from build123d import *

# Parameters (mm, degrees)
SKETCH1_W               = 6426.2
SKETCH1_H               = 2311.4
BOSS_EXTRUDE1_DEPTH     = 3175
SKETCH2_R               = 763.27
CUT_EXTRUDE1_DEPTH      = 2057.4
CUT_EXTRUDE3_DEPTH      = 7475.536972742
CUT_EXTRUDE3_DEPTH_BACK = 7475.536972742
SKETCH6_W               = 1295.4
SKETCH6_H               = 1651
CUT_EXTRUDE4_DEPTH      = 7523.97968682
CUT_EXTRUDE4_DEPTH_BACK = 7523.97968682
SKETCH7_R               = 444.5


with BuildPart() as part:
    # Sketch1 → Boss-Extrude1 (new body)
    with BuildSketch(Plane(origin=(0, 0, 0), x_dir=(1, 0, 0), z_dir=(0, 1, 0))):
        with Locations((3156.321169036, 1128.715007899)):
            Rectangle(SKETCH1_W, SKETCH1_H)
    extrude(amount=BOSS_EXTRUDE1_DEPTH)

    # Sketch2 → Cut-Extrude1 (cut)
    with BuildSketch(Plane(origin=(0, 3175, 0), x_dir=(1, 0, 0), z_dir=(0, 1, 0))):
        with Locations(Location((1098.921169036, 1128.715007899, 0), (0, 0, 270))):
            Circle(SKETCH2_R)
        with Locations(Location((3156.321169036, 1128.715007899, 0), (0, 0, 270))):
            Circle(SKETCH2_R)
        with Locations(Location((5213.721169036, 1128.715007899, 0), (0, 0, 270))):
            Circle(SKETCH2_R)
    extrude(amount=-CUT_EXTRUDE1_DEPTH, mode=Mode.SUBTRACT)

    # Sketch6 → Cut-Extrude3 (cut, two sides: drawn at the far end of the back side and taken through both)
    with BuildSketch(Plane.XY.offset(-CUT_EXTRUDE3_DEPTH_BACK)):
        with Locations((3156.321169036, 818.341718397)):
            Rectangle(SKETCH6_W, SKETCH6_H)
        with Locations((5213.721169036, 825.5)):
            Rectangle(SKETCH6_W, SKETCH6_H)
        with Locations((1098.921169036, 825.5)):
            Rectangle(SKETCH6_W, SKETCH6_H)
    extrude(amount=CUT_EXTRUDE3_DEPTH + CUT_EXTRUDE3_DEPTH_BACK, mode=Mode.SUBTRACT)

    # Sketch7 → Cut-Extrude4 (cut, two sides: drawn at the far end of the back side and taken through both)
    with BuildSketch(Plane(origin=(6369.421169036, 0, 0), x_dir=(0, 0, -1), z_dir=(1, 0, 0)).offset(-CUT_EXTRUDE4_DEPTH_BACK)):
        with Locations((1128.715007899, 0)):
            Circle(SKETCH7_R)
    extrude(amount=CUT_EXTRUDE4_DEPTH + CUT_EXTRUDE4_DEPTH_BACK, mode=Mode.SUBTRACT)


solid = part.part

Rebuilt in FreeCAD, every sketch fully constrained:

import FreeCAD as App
import Part
import Sketcher

V = App.Vector
Q = App.Units.Quantity

doc = App.newDocument("Part")
params = doc.addObject("Spreadsheet::Sheet", "Params")
for row, (alias, value) in enumerate([
    ("sketch1_width", "253 in"),
    ("sketch1_height", "91 in"),
    ("pad1_length", "125 in"),
    ("sketch2_diameter", "60.1 in"),
    ("pocket1_length", "81 in"),
    ("sketch3_width", "51 in"),
    ("sketch3_height", "65 in"),
    ("sketch4_diameter", "35 in"),
], start=1):
    params.set(f"A{row}", alias)
    params.set(f"B{row}", "=" + value)
    params.setAlias(f"B{row}", alias)

body = doc.addObject("PartDesign::Body", "Body")

sketch1 = doc.addObject("Sketcher::SketchObject", "Sketch")
body.addObject(sketch1)
sketch1.AttachmentSupport = (doc.XZ_Plane, [""])
sketch1.MapMode = "FlatFace"
sketch1.addGeometry(Part.LineSegment(V(-57, -2284, 0), V(-57, 27, 0)), False)
sketch1.addGeometry(Part.LineSegment(V(-57, 27, 0), V(6369, 27, 0)), False)
sketch1.addGeometry(Part.LineSegment(V(6369, 27, 0), V(6369, -2284, 0)), False)
sketch1.addGeometry(Part.LineSegment(V(6369, -2284, 0), V(-57, -2284, 0)), False)
sketch1.addConstraint(Sketcher.Constraint("Coincident", 0, 2, 1, 1))
sketch1.addConstraint(Sketcher.Constraint("Coincident", 1, 2, 2, 1))
sketch1.addConstraint(Sketcher.Constraint("Coincident", 2, 2, 3, 1))
sketch1.addConstraint(Sketcher.Constraint("Coincident", 3, 2, 0, 1))
sketch1.addConstraint(Sketcher.Constraint("Vertical", 0))
sketch1.addConstraint(Sketcher.Constraint("Horizontal", 1))
sketch1.addConstraint(Sketcher.Constraint("Vertical", 2))
sketch1.addConstraint(Sketcher.Constraint("Horizontal", 3))
sketch1.addConstraint(Sketcher.Constraint("DistanceX", 1, 1, 1, 2, Q("253 in")))
sketch1.addConstraint(Sketcher.Constraint("DistanceY", 0, 1, 0, 2, Q("91 in")))
sketch1.addConstraint(Sketcher.Constraint("DistanceX", 0, 2, -1, 1, 56.778831))
sketch1.addConstraint(Sketcher.Constraint("DistanceY", -1, 1, 0, 2, 26.984992))
sketch1.setExpression("Constraints[8]", "Params.sketch1_width")
sketch1.setExpression("Constraints[9]", "Params.sketch1_height")
pad1 = doc.addObject("PartDesign::Pad", "Pad")
body.addObject(pad1)
pad1.Profile = sketch1
pad1.setExpression("Length", "Params.pad1_length")
pad1.Reversed = True

sketch2 = doc.addObject("Sketcher::SketchObject", "Sketch001")
body.addObject(sketch2)
sketch2.AttachmentSupport = (doc.XZ_Plane, [""])
sketch2.MapMode = "FlatFace"
sketch2.AttachmentOffset = App.Placement(V(0, 0, -125 * 25.4), App.Rotation())
sketch2.addGeometry(Part.Circle(V(1099, -1129, 0), V(0, 0, 1), 763), False)
sketch2.addGeometry(Part.Circle(V(3156, -1129, 0), V(0, 0, 1), 763), False)
sketch2.addGeometry(Part.Circle(V(5214, -1129, 0), V(0, 0, 1), 763), False)
sketch2.addConstraint(Sketcher.Constraint("Equal", 0, 1))
sketch2.addConstraint(Sketcher.Constraint("Equal", 1, 2))
sketch2.addConstraint(Sketcher.Constraint("Horizontal", 0, 3, 1, 3))
sketch2.addConstraint(Sketcher.Constraint("Horizontal", 1, 3, 2, 3))
sketch2.addConstraint(Sketcher.Constraint("Diameter", 0, Q("60.1 in")))
sketch2.addConstraint(Sketcher.Constraint("DistanceX", 0, 3, 1, 3, Q("81 in")))
sketch2.addConstraint(Sketcher.Constraint("DistanceX", 1, 3, 2, 3, Q("81 in")))
sketch2.addConstraint(Sketcher.Constraint("DistanceX", -1, 1, 0, 3, 1098.921169))
sketch2.addConstraint(Sketcher.Constraint("DistanceY", 0, 3, -1, 1, 1128.715008))
sketch2.setExpression("Constraints[4]", "Params.sketch2_diameter")
pocket1 = doc.addObject("PartDesign::Pocket", "Pocket")
body.addObject(pocket1)
pocket1.Profile = sketch2
pocket1.setExpression("Length", "Params.pocket1_length")
pocket1.Reversed = True

sketch3 = doc.addObject("Sketcher::SketchObject", "Sketch002")
body.addObject(sketch3)
sketch3.AttachmentSupport = (doc.XY_Plane, [""])
sketch3.MapMode = "FlatFace"
sketch3.addGeometry(Part.LineSegment(V(2509, 1644, 0), V(2509, -7, 0)), False)
sketch3.addGeometry(Part.LineSegment(V(2509, -7, 0), V(3804, -7, 0)), False)
sketch3.addGeometry(Part.LineSegment(V(3804, -7, 0), V(3804, 1644, 0)), False)
sketch3.addGeometry(Part.LineSegment(V(3804, 1644, 0), V(2509, 1644, 0)), False)
sketch3.addGeometry(Part.LineSegment(V(4566, 1651, 0), V(4566, 0, 0)), False)
sketch3.addGeometry(Part.LineSegment(V(4566, 0, 0), V(5861, 0, 0)), False)
sketch3.addGeometry(Part.LineSegment(V(5861, 0, 0), V(5861, 1651, 0)), False)
sketch3.addGeometry(Part.LineSegment(V(5861, 1651, 0), V(4566, 1651, 0)), False)
sketch3.addGeometry(Part.LineSegment(V(451, 1651, 0), V(451, 0, 0)), False)
sketch3.addGeometry(Part.LineSegment(V(451, 0, 0), V(1747, 0, 0)), False)
sketch3.addGeometry(Part.LineSegment(V(1747, 0, 0), V(1747, 1651, 0)), False)
sketch3.addGeometry(Part.LineSegment(V(1747, 1651, 0), V(451, 1651, 0)), False)
sketch3.addConstraint(Sketcher.Constraint("Coincident", 0, 2, 1, 1))
sketch3.addConstraint(Sketcher.Constraint("Coincident", 1, 2, 2, 1))
sketch3.addConstraint(Sketcher.Constraint("Coincident", 2, 2, 3, 1))
sketch3.addConstraint(Sketcher.Constraint("Coincident", 3, 2, 0, 1))
sketch3.addConstraint(Sketcher.Constraint("Coincident", 4, 2, 5, 1))
sketch3.addConstraint(Sketcher.Constraint("Coincident", 5, 2, 6, 1))
sketch3.addConstraint(Sketcher.Constraint("Coincident", 6, 2, 7, 1))
sketch3.addConstraint(Sketcher.Constraint("Coincident", 7, 2, 4, 1))
sketch3.addConstraint(Sketcher.Constraint("Coincident", 8, 2, 9, 1))
sketch3.addConstraint(Sketcher.Constraint("Coincident", 9, 2, 10, 1))
sketch3.addConstraint(Sketcher.Constraint("Coincident", 10, 2, 11, 1))
sketch3.addConstraint(Sketcher.Constraint("Coincident", 11, 2, 8, 1))
sketch3.addConstraint(Sketcher.Constraint("Vertical", 0))
sketch3.addConstraint(Sketcher.Constraint("Horizontal", 1))
sketch3.addConstraint(Sketcher.Constraint("Vertical", 2))
sketch3.addConstraint(Sketcher.Constraint("Horizontal", 3))
sketch3.addConstraint(Sketcher.Constraint("Vertical", 4))
sketch3.addConstraint(Sketcher.Constraint("Horizontal", 5))
sketch3.addConstraint(Sketcher.Constraint("Vertical", 6))
sketch3.addConstraint(Sketcher.Constraint("Horizontal", 7))
sketch3.addConstraint(Sketcher.Constraint("Vertical", 8))
sketch3.addConstraint(Sketcher.Constraint("Horizontal", 9))
sketch3.addConstraint(Sketcher.Constraint("Vertical", 10))
sketch3.addConstraint(Sketcher.Constraint("Horizontal", 11))
sketch3.addConstraint(Sketcher.Constraint("PointOnObject", 4, 2, -1))
sketch3.addConstraint(Sketcher.Constraint("PointOnObject", 8, 2, -1))
sketch3.addConstraint(Sketcher.Constraint("Horizontal", 7, 2, 10, 2))
sketch3.addConstraint(Sketcher.Constraint("Equal", 3, 5))
sketch3.addConstraint(Sketcher.Constraint("Equal", 7, 9))
sketch3.addConstraint(Sketcher.Constraint("Equal", 2, 4))
sketch3.addConstraint(Sketcher.Constraint("DistanceX", 1, 1, 1, 2, Q("51 in")))
sketch3.addConstraint(Sketcher.Constraint("DistanceY", 0, 2, 0, 1, Q("65 in")))
sketch3.addConstraint(Sketcher.Constraint("DistanceX", 1, 2, 4, 2, Q("30 in")))
sketch3.addConstraint(Sketcher.Constraint("DistanceX", 8, 2, 0, 2, Q("81 in")))
sketch3.addConstraint(Sketcher.Constraint("DistanceX", -1, 1, 0, 2, 2508.621169))
sketch3.addConstraint(Sketcher.Constraint("DistanceY", 0, 2, -1, 1, 7.158282))
sketch3.setExpression("Constraints[30]", "Params.sketch3_width")
sketch3.setExpression("Constraints[31]", "Params.sketch3_height")
pocket2 = doc.addObject("PartDesign::Pocket", "Pocket001")
body.addObject(pocket2)
pocket2.Profile = sketch3
pocket2.Type = "ThroughAll"
pocket2.Midplane = True

sketch4 = doc.addObject("Sketcher::SketchObject", "Sketch003")
body.addObject(sketch4)
sketch4.AttachmentSupport = (doc.YZ_Plane, [""])
sketch4.MapMode = "FlatFace"
sketch4.AttachmentOffset = App.Placement(V(0, 0, 6369.421169), App.Rotation())
sketch4.addGeometry(Part.Circle(V(0, -1129, 0), V(0, 0, 1), 444), False)
sketch4.addConstraint(Sketcher.Constraint("PointOnObject", 0, 3, -2))
sketch4.addConstraint(Sketcher.Constraint("Diameter", 0, Q("35 in")))
sketch4.addConstraint(Sketcher.Constraint("DistanceY", 0, 3, -1, 1, 1128.715008))
sketch4.setExpression("Constraints[1]", "Params.sketch4_diameter")
pocket3 = doc.addObject("PartDesign::Pocket", "Pocket002")
body.addObject(pocket3)
pocket3.Profile = sketch4
pocket3.Type = "ThroughAll"
pocket3.Midplane = True

doc.recompute()
